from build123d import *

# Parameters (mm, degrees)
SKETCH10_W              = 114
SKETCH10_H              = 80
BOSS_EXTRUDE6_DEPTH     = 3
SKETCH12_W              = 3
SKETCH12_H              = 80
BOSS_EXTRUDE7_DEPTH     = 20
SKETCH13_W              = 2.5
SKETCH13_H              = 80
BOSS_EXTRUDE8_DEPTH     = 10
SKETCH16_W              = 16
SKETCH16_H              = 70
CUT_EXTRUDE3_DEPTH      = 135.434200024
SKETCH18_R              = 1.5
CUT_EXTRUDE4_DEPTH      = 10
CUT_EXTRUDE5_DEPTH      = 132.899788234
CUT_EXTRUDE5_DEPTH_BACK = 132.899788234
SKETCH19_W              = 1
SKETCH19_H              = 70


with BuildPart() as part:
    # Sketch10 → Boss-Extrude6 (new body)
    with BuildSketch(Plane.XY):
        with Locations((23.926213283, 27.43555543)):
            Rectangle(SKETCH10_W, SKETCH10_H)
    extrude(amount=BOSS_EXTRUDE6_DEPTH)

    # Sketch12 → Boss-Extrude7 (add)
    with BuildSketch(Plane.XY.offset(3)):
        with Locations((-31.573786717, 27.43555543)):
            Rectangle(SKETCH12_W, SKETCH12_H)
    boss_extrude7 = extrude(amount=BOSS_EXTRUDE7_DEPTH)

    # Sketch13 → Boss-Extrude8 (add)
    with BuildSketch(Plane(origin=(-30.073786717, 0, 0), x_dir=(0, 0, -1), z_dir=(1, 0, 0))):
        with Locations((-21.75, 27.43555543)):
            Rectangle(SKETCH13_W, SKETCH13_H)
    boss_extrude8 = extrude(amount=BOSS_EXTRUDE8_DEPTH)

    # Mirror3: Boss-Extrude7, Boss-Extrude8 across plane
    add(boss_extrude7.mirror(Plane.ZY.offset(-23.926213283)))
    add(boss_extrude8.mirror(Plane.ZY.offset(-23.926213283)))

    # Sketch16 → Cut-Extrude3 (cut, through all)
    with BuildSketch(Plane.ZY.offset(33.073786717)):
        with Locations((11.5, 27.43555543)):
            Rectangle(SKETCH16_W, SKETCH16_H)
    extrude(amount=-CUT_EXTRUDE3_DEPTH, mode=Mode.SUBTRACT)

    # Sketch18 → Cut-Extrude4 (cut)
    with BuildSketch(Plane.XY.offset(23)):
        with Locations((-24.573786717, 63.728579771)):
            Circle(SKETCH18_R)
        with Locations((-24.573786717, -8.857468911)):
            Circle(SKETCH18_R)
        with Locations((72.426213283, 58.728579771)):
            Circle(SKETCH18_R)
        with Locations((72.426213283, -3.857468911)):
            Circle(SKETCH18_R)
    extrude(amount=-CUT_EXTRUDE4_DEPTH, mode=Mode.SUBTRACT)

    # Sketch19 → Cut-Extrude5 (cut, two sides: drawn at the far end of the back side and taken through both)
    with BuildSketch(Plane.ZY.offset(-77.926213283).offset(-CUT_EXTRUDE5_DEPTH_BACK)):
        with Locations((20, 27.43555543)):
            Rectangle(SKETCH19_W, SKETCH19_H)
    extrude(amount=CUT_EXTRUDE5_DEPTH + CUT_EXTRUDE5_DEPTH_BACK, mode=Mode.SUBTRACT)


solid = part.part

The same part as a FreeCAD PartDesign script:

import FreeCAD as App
import Part
import Sketcher
Q = App.Units.Quantity

doc = App.newDocument("Part")
body = doc.addObject("PartDesign::Body", "Body")

sketch1 = body.newObject("Sketcher::SketchObject", "Sketch")
sketch1.AttachmentSupport = (doc.getObject("XY_Plane"), [""])
sketch1.MapMode = "FlatFace"
sketch1.addGeometry([
    Part.LineSegment(App.Vector(-33, 67, 0), App.Vector(-33, -13, 0)),
    Part.LineSegment(App.Vector(-33, -13, 0), App.Vector(81, -13, 0)),
    Part.LineSegment(App.Vector(81, -13, 0), App.Vector(81, 67, 0)),
    Part.LineSegment(App.Vector(81, 67, 0), App.Vector(-33, 67, 0)),
], False)
sketch1.addConstraint([
    Sketcher.Constraint("Coincident", 0, 2, 1, 1),
    Sketcher.Constraint("Coincident", 1, 2, 2, 1),
    Sketcher.Constraint("Coincident", 2, 2, 3, 1),
    Sketcher.Constraint("Coincident", 3, 2, 0, 1),
    Sketcher.Constraint("Vertical", 0),
    Sketcher.Constraint("Horizontal", 1),
    Sketcher.Constraint("Vertical", 2),
    Sketcher.Constraint("Horizontal", 3),
    Sketcher.Constraint("DistanceX", 1, 1, 1, 2, Q("114 mm")),
    Sketcher.Constraint("DistanceY", 0, 2, 0, 1, Q("80 mm")),
    Sketcher.Constraint("DistanceX", 0, 2, -1, 1, Q("33.073787 mm")),
    Sketcher.Constraint("DistanceY", 0, 2, -1, 1, Q("12.564445 mm")),
])
pad1 = body.newObject("PartDesign::Pad", "Pad")
pad1.Profile = sketch1
pad1.Length = 3

sketch2 = body.newObject("Sketcher::SketchObject", "Sketch001")
sketch2.AttachmentSupport = (doc.getObject("XY_Plane"), [""])
sketch2.MapMode = "FlatFace"
sketch2.AttachmentOffset = App.Placement(App.Vector(0, 0, 3), App.Rotation())
sketch2.addGeometry([
    Part.LineSegment(App.Vector(-33.1, 67.4, 0), App.Vector(-33.1, -12.6, 0)),
    Part.LineSegment(App.Vector(-33.1, -12.6, 0), App.Vector(-30.1, -12.6, 0)),
    Part.LineSegment(App.Vector(-30.1, -12.6, 0), App.Vector(-30.1, 67.4, 0)),
    Part.LineSegment(App.Vector(-30.1, 67.4, 0), App.Vector(-33.1, 67.4, 0)),
], False)
sketch2.addConstraint([
    Sketcher.Constraint("Coincident", 0, 2, 1, 1),
    Sketcher.Constraint("Coincident", 1, 2, 2, 1),
    Sketcher.Constraint("Coincident", 2, 2, 3, 1),
    Sketcher.Constraint("Coincident", 3, 2, 0, 1),
    Sketcher.Constraint("Vertical", 0),
    Sketcher.Constraint("Horizontal", 1),
    Sketcher.Constraint("Vertical", 2),
    Sketcher.Constraint("Horizontal", 3),
    Sketcher.Constraint("DistanceX", 1, 1, 1, 2, Q("3 mm")),
    Sketcher.Constraint("DistanceY", 0, 2, 0, 1, Q("80 mm")),
    Sketcher.Constraint("DistanceX", 0, 2, -1, 1, Q("33.073787 mm")),
    Sketcher.Constraint("DistanceY", 0, 2, -1, 1, Q("12.564445 mm")),
])
pad2 = body.newObject("PartDesign::Pad", "Pad001")
pad2.Profile = sketch2
pad2.Length = 20

sketch3 = body.newObject("Sketcher::SketchObject", "Sketch002")
sketch3.AttachmentSupport = (doc.getObject("YZ_Plane"), [""])
sketch3.MapMode = "FlatFace"
sketch3.AttachmentOffset = App.Placement(App.Vector(0, 0, -30.073787), App.Rotation())
sketch3.addGeometry([
    Part.LineSegment(App.Vector(67.4, 23, 0), App.Vector(-12.6, 23, 0)),
    Part.LineSegment(App.Vector(-12.6, 23, 0), App.Vector(-12.6, 20.5, 0)),
    Part.LineSegment(App.Vector(-12.6, 20.5, 0), App.Vector(67.4, 20.5, 0)),
    Part.LineSegment(App.Vector(67.4, 20.5, 0), App.Vector(67.4, 23, 0)),
], False)
sketch3.addConstraint([
    Sketcher.Constraint("Coincident", 0, 2, 1, 1),
    Sketcher.Constraint("Coincident", 1, 2, 2, 1),
    Sketcher.Constraint("Coincident", 2, 2, 3, 1),
    Sketcher.Constraint("Coincident", 3, 2, 0, 1),
    Sketcher.Constraint("Horizontal", 0),
    Sketcher.Constraint("Vertical", 1),
    Sketcher.Constraint("Horizontal", 2),
    Sketcher.Constraint("Vertical", 3),
    Sketcher.Constraint("DistanceX", 0, 2, 0, 1, Q("80 mm")),
    Sketcher.Constraint("DistanceY", 1, 2, 1, 1, Q("2.5 mm")),
    Sketcher.Constraint("DistanceY", -1, 1, 0, 2, Q("23 mm")),
    Sketcher.Constraint("DistanceX", 0, 2, -1, 1, Q("12.564445 mm")),
])
pad3 = body.newObject("PartDesign::Pad", "Pad002")
pad3.Profile = sketch3
pad3.Length = 10
doc.recompute()

datumplane = body.newObject("PartDesign::Plane", "DatumPlane")
datumplane.AttachmentSupport = (doc.getObject("YZ_Plane"), [""])
datumplane.MapMode = "FlatFace"
datumplane.AttachmentOffset = App.Placement(App.Vector(0, 0, 23.926213), App.Rotation())
mirrored = body.newObject("PartDesign::Mirrored", "Mirrored")
mirrored.Originals = [pad2, pad3]
mirrored.MirrorPlane = (datumplane, [""])
body.Tip = mirrored

sketch4 = body.newObject("Sketcher::SketchObject", "Sketch003")
sketch4.AttachmentSupport = (doc.getObject("YZ_Plane"), [""])
sketch4.MapMode = "FlatFace"
sketch4.AttachmentOffset = App.Placement(App.Vector(0, 0, -33.073787), App.Rotation())
sketch4.addGeometry([
    Part.LineSegment(App.Vector(62, 4, 0), App.Vector(-8, 4, 0)),
    Part.LineSegment(App.Vector(-8, 4, 0), App.Vector(-8, 20, 0)),
    Part.LineSegment(App.Vector(-8, 20, 0), App.Vector(62, 20, 0)),
    Part.LineSegment(App.Vector(62, 20, 0), App.Vector(62, 4, 0)),
], False)
sketch4.addConstraint([
    Sketcher.Constraint("Coincident", 0, 2, 1, 1),
    Sketcher.Constraint("Coincident", 1, 2, 2, 1),
    Sketcher.Constraint("Coincident", 2, 2, 3, 1),
    Sketcher.Constraint("Coincident", 3, 2, 0, 1),
    Sketcher.Constraint("Horizontal", 0),
    Sketcher.Constraint("Vertical", 1),
    Sketcher.Constraint("Horizontal", 2),
    Sketcher.Constraint("Vertical", 3),
    Sketcher.Constraint("DistanceX", 0, 2, 0, 1, Q("70 mm")),
    Sketcher.Constraint("DistanceY", 1, 1, 1, 2, Q("16 mm")),
    Sketcher.Constraint("DistanceY", -1, 1, 0, 2, Q("3.5 mm")),
    Sketcher.Constraint("DistanceX", 0, 2, -1, 1, Q("7.564445 mm")),
])
pocket1 = body.newObject("PartDesign::Pocket", "Pocket")
pocket1.Profile = sketch4
pocket1.Type = "ThroughAll"
pocket1.Reversed = True

sketch5 = body.newObject("Sketcher::SketchObject", "Sketch004")
sketch5.AttachmentSupport = (doc.getObject("XY_Plane"), [""])
sketch5.MapMode = "FlatFace"
sketch5.AttachmentOffset = App.Placement(App.Vector(0, 0, 23), App.Rotation())
sketch5.addGeometry([
    Part.Circle(App.Vector(-24.6, 63.7, 0), App.Vector(0, 0, 1), 1.5),
    Part.Circle(App.Vector(-24.6, -8.9, 0), App.Vector(0, 0, 1), 1.5),
    Part.Circle(App.Vector(72.4, 58.7, 0), App.Vector(0, 0, 1), 1.5),
    Part.Circle(App.Vector(72.4, -3.9, 0), App.Vector(0, 0, 1), 1.5),
], False)
sketch5.addConstraint([
    Sketcher.Constraint("Equal", 0, 1),
    Sketcher.Constraint("Equal", 1, 2),
    Sketcher.Constraint("Equal", 2, 3),
    Sketcher.Constraint("Vertical", 0, 3, 1, 3),
    Sketcher.Constraint("Vertical", 2, 3, 3, 3),
    Sketcher.Constraint("Diameter", 0, Q("3 mm")),
    Sketcher.Constraint("DistanceX", 0, 3, 2, 3, Q("97 mm")),
    Sketcher.Constraint("DistanceY", 2, 3, 0, 3, Q("5 mm")),
    Sketcher.Constraint("DistanceY", 1, 3, 3, 3, Q("5 mm")),
    Sketcher.Constraint("DistanceY", -1, 1, 0, 3, Q("63.72858 mm")),
    Sketcher.Constraint("DistanceY", 1, 3, -1, 1, Q("8.857469 mm")),
    Sketcher.Constraint("DistanceX", 0, 3, -1, 1, Q("24.573787 mm")),
])
pocket2 = body.newObject("PartDesign::Pocket", "Pocket001")
pocket2.Profile = sketch5
pocket2.Length = 10

sketch6 = body.newObject("Sketcher::SketchObject", "Sketch005")
sketch6.AttachmentSupport = (doc.getObject("YZ_Plane"), [""])
sketch6.MapMode = "FlatFace"
sketch6.AttachmentOffset = App.Placement(App.Vector(0, 0, 77.926213), App.Rotation())
sketch6.addGeometry([
    Part.LineSegment(App.Vector(62.4, 19.5, 0), App.Vector(-7.6, 19.5, 0)),
    Part.LineSegment(App.Vector(-7.6, 19.5, 0), App.Vector(-7.6, 20.5, 0)),
    Part.LineSegment(App.Vector(-7.6, 20.5, 0), App.Vector(62.4, 20.5, 0)),
    Part.LineSegment(App.Vector(62.4, 20.5, 0), App.Vector(62.4, 19.5, 0)),
], False)
sketch6.addConstraint([
    Sketcher.Constraint("Coincident", 0, 2, 1, 1),
    Sketcher.Constraint("Coincident", 1, 2, 2, 1),
    Sketcher.Constraint("Coincident", 2, 2, 3, 1),
    Sketcher.Constraint("Coincident", 3, 2, 0, 1),
    Sketcher.Constraint("Horizontal", 0),
    Sketcher.Constraint("Vertical", 1),
    Sketcher.Constraint("Horizontal", 2),
    Sketcher.Constraint("Vertical", 3),
    Sketcher.Constraint("DistanceX", 0, 2, 0, 1, Q("70 mm")),
    Sketcher.Constraint("DistanceY", 1, 1, 1, 2, Q("1 mm")),
    Sketcher.Constraint("DistanceY", -1, 1, 0, 2, Q("19.5 mm")),
    Sketcher.Constraint("DistanceX", 0, 2, -1, 1, Q("7.564445 mm")),
])
pocket3 = body.newObject("PartDesign::Pocket", "Pocket002")
pocket3.Profile = sketch6
pocket3.Type = "ThroughAll"
pocket3.Midplane = True

doc.recompute()
